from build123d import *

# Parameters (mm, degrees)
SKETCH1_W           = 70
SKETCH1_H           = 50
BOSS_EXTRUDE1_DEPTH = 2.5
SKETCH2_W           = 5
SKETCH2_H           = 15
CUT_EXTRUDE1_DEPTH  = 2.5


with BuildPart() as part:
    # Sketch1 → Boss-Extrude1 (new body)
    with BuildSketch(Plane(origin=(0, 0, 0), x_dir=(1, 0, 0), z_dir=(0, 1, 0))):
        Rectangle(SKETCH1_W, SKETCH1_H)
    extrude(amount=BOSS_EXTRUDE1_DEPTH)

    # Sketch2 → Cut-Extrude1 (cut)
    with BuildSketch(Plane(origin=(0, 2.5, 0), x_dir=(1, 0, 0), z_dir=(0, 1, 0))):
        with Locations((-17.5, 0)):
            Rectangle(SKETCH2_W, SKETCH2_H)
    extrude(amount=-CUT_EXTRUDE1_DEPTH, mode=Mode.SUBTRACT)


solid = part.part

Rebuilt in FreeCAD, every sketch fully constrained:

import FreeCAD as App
import Part
import Sketcher

V = App.Vector
Q = App.Units.Quantity

doc = App.newDocument("Part")
body = doc.addObject("PartDesign::Body", "Body")

# Sketch on XZ plane
sketch1 = body.newObject("Sketcher::SketchObject", "Sketch")
sketch1.AttachmentSupport = (doc.getObject("XZ_Plane"), [""])
sketch1.MapMode = "FlatFace"
sketch1.addGeometry([
    Part.LineSegment(V(-35, -25, 0), V(-35, 25, 0)),
    Part.LineSegment(V(-35, 25, 0), V(35, 25, 0)),
    Part.LineSegment(V(35, 25, 0), V(35, -25, 0)),
    Part.LineSegment(V(35, -25, 0), V(-35, -25, 0)),
], False)
sketch1.addConstraint([
    Sketcher.Constraint("Coincident", 0, 2, 1, 1),
    Sketcher.Constraint("Coincident", 1, 2, 2, 1),
    Sketcher.Constraint("Coincident", 2, 2, 3, 1),
    Sketcher.Constraint("Coincident", 3, 2, 0, 1),
    Sketcher.Constraint("Vertical", 0),
    Sketcher.Constraint("Horizontal", 1),
    Sketcher.Constraint("Vertical", 2),
    Sketcher.Constraint("Horizontal", 3),
    Sketcher.Constraint("Symmetric", 0, 2, 2, 2, -1, 1),
    Sketcher.Constraint("DistanceX", 1, 1, 1, 2, Q("70 mm")),
    Sketcher.Constraint("DistanceY", 0, 1, 0, 2, Q("50 mm")),
])
pad1 = body.newObject("PartDesign::Pad", "Pad")
pad1.Profile = sketch1
pad1.Length = 2.5
pad1.Reversed = True

# Sketch on XZ plane
sketch2 = body.newObject("Sketcher::SketchObject", "Sketch001")
sketch2.AttachmentSupport = (doc.getObject("XZ_Plane"), [""])
sketch2.MapMode = "FlatFace"
sketch2.AttachmentOffset = App.Placement(V(0, 0, -2.5), App.Rotation())
sketch2.addGeometry([
    Part.LineSegment(V(-20, -8, 0), V(-20, 8, 0)),
    Part.LineSegment(V(-20, 8, 0), V(-15, 8, 0)),
    Part.LineSegment(V(-15, 8, 0), V(-15, -8, 0)),
    Part.LineSegment(V(-15, -8, 0), V(-20, -8, 0)),
], False)
sketch2.addConstraint([
    Sketcher.Constraint("Coincident", 0, 2, 1, 1),
    Sketcher.Constraint("Coincident", 1, 2, 2, 1),
    Sketcher.Constraint("Coincident", 2, 2, 3, 1),
    Sketcher.Constraint("Coincident", 3, 2, 0, 1),
    Sketcher.Constraint("Vertical", 0),
    Sketcher.Constraint("Horizontal", 1),
    Sketcher.Constraint("Vertical", 2),
    Sketcher.Constraint("Horizontal", 3),
    Sketcher.Constraint("DistanceX", 1, 1, 1, 2, Q("5 mm")),
    Sketcher.Constraint("DistanceY", 0, 1, 0, 2, Q("15 mm")),
    Sketcher.Constraint("DistanceX", 0, 2, -1, 1, Q("20 mm")),
    Sketcher.Constraint("DistanceY", -1, 1, 0, 2, Q("7.5 mm")),
])
pocket1 = body.newObject("PartDesign::Pocket", "Pocket")
pocket1.Profile = sketch2
pocket1.Length = 2.5
pocket1.Reversed = True

doc.recompute()
